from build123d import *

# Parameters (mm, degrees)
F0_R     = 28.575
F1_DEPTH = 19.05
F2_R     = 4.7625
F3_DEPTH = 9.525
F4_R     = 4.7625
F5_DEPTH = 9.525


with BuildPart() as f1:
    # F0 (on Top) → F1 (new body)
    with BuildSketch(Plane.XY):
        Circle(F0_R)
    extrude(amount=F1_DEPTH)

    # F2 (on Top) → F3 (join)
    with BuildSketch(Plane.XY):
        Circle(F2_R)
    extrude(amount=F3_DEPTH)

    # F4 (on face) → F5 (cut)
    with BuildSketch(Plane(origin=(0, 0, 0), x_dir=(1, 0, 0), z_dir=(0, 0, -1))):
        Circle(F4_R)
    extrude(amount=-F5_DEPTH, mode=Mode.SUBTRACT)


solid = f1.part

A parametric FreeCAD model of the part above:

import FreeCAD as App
import Part
import Sketcher
Q = App.Units.Quantity

doc = App.newDocument("Part")
body = doc.addObject("PartDesign::Body", "Body")

sketch1 = body.newObject("Sketcher::SketchObject", "Sketch")
sketch1.AttachmentSupport = (doc.getObject("XY_Plane"), [""])
sketch1.MapMode = "FlatFace"
sketch1.addGeometry(Part.Circle(App.Vector(0, 0, 0), App.Vector(0, 0, 1), 28.575), False)
sketch1.addConstraint(Sketcher.Constraint("Coincident", 0, 3, -1, 1))
sketch1.addConstraint(Sketcher.Constraint("Diameter", 0, Q("2.25 in")))
pad1 = body.newObject("PartDesign::Pad", "Pad")
pad1.Profile = sketch1
pad1.Length = Q("0.75 in")

sketch2 = body.newObject("Sketcher::SketchObject", "Sketch001")
sketch2.AttachmentSupport = (doc.getObject("XY_Plane"), [""])
sketch2.MapMode = "FlatFace"
sketch2.addGeometry(Part.Circle(App.Vector(0, 0, 0), App.Vector(0, 0, 1), 4.7625), False)
sketch2.addConstraint(Sketcher.Constraint("Coincident", 0, 3, -1, 1))
sketch2.addConstraint(Sketcher.Constraint("Diameter", 0, Q("0.375 in")))
pad2 = body.newObject("PartDesign::Pad", "Pad001")
pad2.Profile = sketch2
pad2.Length = Q("0.375 in")

sketch3 = body.newObject("Sketcher::SketchObject", "Sketch002")
sketch3.AttachmentSupport = (doc.getObject("XY_Plane"), [""])
sketch3.MapMode = "FlatFace"
sketch3.addGeometry(Part.Circle(App.Vector(0, 0, 0), App.Vector(0, 0, 1), 4.7625), False)
sketch3.addConstraint(Sketcher.Constraint("Coincident", 0, 3, -1, 1))
sketch3.addConstraint(Sketcher.Constraint("Diameter", 0, Q("0.375 in")))
pocket1 = body.newObject("PartDesign::Pocket", "Pocket")
pocket1.Profile = sketch3
pocket1.Length = Q("0.375 in")
pocket1.Reversed = True

doc.recompute()
